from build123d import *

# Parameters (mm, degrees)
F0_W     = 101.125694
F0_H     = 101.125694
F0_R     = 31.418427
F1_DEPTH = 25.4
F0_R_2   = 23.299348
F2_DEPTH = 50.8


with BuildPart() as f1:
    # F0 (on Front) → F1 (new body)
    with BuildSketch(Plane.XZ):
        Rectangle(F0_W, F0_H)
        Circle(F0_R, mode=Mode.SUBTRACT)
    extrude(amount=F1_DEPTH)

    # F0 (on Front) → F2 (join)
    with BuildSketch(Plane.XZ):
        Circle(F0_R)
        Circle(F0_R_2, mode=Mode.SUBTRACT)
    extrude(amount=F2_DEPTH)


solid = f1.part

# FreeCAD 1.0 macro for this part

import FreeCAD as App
import Part
import Sketcher
Q = App.Units.Quantity

doc = App.newDocument("Part")
body = doc.addObject("PartDesign::Body", "Body")

sketch1 = body.newObject("Sketcher::SketchObject", "Sketch")
sketch1.AttachmentSupport = (doc.getObject("XZ_Plane"), [""])
sketch1.MapMode = "FlatFace"
sketch1.addGeometry(Part.LineSegment(App.Vector(-51, 51, 0), App.Vector(-51, -51, 0)), False)
sketch1.addGeometry(Part.LineSegment(App.Vector(-51, -51, 0), App.Vector(51, -51, 0)), False)
sketch1.addGeometry(Part.LineSegment(App.Vector(51, -51, 0), App.Vector(51, 51, 0)), False)
sketch1.addGeometry(Part.LineSegment(App.Vector(51, 51, 0), App.Vector(-51, 51, 0)), False)
sketch1.addGeometry(Part.Circle(App.Vector(0, 0, 0), App.Vector(0, 0, 1), 31), False)
sketch1.addConstraint(Sketcher.Constraint("Coincident", 0, 2, 1, 1))
sketch1.addConstraint(Sketcher.Constraint("Coincident", 1, 2, 2, 1))
sketch1.addConstraint(Sketcher.Constraint("Coincident", 2, 2, 3, 1))
sketch1.addConstraint(Sketcher.Constraint("Coincident", 3, 2, 0, 1))
sketch1.addConstraint(Sketcher.Constraint("Vertical", 0))
sketch1.addConstraint(Sketcher.Constraint("Horizontal", 1))
sketch1.addConstraint(Sketcher.Constraint("Vertical", 2))
sketch1.addConstraint(Sketcher.Constraint("Horizontal", 3))
sketch1.addConstraint(Sketcher.Constraint("Coincident", 4, 3, -1, 1))
sketch1.addConstraint(Sketcher.Constraint("Symmetric", 0, 2, 2, 2, -1, 1))
sketch1.addConstraint(Sketcher.Constraint("Equal", 3, 0))
sketch1.addConstraint(Sketcher.Constraint("Diameter", 4, 62.836854))
sketch1.addConstraint(Sketcher.Constraint("DistanceX", 1, 1, 1, 2, 101.125694))
pad1 = body.newObject("PartDesign::Pad", "Pad")
pad1.Profile = sketch1
pad1.Length = Q("1 in")

sketch2 = body.newObject("Sketcher::SketchObject", "Sketch001")
sketch2.AttachmentSupport = (doc.getObject("XZ_Plane"), [""])
sketch2.MapMode = "FlatFace"
sketch2.addGeometry(Part.Circle(App.Vector(0, 0, 0), App.Vector(0, 0, 1), 31), False)
sketch2.addGeometry(Part.Circle(App.Vector(0, 0, 0), App.Vector(0, 0, 1), 23), False)
sketch2.addConstraint(Sketcher.Constraint("Coincident", 0, 3, -1, 1))
sketch2.addConstraint(Sketcher.Constraint("Coincident", 1, 3, -1, 1))
sketch2.addConstraint(Sketcher.Constraint("Diameter", 0, 62.836854))
sketch2.addConstraint(Sketcher.Constraint("Diameter", 1, 46.598696))
pad2 = body.newObject("PartDesign::Pad", "Pad001")
pad2.Profile = sketch2
pad2.Length = Q("2 in")

doc.recompute()
